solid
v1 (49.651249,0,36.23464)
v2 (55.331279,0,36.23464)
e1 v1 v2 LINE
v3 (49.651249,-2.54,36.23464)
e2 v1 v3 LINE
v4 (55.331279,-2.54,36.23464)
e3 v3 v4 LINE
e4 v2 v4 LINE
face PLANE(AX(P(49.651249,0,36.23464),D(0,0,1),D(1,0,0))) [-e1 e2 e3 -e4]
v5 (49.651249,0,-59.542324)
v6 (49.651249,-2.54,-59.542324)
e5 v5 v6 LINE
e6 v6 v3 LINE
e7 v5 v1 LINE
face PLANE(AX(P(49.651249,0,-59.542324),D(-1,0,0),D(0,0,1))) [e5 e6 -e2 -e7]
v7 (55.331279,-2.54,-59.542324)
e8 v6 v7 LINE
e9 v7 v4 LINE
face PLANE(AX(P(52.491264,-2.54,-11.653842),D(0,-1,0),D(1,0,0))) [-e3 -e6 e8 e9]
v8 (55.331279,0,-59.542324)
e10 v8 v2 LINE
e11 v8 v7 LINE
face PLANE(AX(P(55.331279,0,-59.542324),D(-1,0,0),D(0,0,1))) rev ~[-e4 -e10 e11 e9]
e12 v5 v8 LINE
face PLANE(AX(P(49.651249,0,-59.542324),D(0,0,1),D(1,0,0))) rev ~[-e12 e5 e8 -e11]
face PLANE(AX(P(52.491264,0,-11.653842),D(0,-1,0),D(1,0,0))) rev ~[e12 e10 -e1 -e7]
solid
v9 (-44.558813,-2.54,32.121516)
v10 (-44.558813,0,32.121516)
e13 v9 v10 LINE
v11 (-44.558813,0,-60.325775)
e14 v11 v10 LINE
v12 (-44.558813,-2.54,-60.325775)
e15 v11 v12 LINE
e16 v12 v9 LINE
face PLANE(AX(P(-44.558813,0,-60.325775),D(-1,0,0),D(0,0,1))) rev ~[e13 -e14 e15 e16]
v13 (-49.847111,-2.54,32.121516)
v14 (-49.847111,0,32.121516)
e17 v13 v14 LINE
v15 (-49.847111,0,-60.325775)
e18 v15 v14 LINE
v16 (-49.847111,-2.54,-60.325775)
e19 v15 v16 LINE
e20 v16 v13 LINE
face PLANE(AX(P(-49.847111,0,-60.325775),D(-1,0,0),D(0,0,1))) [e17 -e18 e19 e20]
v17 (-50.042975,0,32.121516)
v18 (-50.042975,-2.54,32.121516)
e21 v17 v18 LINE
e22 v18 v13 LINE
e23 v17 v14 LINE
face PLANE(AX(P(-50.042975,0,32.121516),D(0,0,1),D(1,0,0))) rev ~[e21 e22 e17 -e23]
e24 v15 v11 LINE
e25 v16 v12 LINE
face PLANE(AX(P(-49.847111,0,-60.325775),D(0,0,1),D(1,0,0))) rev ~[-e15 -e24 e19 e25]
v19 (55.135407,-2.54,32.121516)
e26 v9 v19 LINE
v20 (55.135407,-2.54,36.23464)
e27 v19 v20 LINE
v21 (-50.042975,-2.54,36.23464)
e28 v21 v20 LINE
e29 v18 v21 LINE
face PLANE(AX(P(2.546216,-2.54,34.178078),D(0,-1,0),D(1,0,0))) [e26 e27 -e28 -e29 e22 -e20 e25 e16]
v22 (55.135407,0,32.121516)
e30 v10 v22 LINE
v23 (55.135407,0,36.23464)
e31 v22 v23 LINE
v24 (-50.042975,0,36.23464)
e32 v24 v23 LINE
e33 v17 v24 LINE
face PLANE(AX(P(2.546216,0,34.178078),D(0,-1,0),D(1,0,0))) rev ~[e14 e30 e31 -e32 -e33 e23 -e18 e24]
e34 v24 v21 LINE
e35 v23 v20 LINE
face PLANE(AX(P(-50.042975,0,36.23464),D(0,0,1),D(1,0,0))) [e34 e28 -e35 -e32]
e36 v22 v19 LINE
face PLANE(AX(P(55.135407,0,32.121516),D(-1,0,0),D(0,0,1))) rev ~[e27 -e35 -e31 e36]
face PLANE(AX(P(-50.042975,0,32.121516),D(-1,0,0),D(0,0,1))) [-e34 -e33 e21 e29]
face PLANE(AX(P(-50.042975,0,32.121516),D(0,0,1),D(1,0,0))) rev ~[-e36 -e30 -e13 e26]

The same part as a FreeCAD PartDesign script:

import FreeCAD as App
import Part
import Sketcher
from FreeCAD import Vector
Q = App.Units.Quantity

doc = App.newDocument("Part")
body = doc.addObject("PartDesign::Body", "Body")

sketch1 = body.newObject("Sketcher::SketchObject", "Sketch")
sketch1.AttachmentSupport = (doc.getObject("XZ_Plane"), [""])
sketch1.MapMode = "FlatFace"
sketch1.addGeometry(Part.LineSegment(Vector(-50, 36, 0), Vector(-50, -60, 0)), False)
sketch1.addGeometry(Part.LineSegment(Vector(-50, -60, 0), Vector(-45, -60, 0)), False)
sketch1.addGeometry(Part.LineSegment(Vector(-45, -60, 0), Vector(-45, 36, 0)), False)
sketch1.addGeometry(Part.LineSegment(Vector(-45, 36, 0), Vector(-50, 36, 0)), False)
sketch1.addConstraint(Sketcher.Constraint("Coincident", 0, 2, 1, 1))
sketch1.addConstraint(Sketcher.Constraint("Coincident", 1, 2, 2, 1))
sketch1.addConstraint(Sketcher.Constraint("Coincident", 2, 2, 3, 1))
sketch1.addConstraint(Sketcher.Constraint("Coincident", 3, 2, 0, 1))
sketch1.addConstraint(Sketcher.Constraint("Vertical", 0))
sketch1.addConstraint(Sketcher.Constraint("Horizontal", 1))
sketch1.addConstraint(Sketcher.Constraint("Vertical", 2))
sketch1.addConstraint(Sketcher.Constraint("Horizontal", 3))
sketch1.addConstraint(Sketcher.Constraint("DistanceX", 1, 1, 1, 2, 5.288299))
sketch1.addConstraint(Sketcher.Constraint("DistanceY", 0, 2, 0, 1, 96.168689))
sketch1.addConstraint(Sketcher.Constraint("DistanceX", 0, 2, -1, 1, 49.847111))
sketch1.addConstraint(Sketcher.Constraint("DistanceY", 0, 2, -1, 1, 60.325775))
pad1 = body.newObject("PartDesign::Pad", "Pad")
pad1.Profile = sketch1
pad1.Length = Q("0.1 in")

sketch2 = body.newObject("Sketcher::SketchObject", "Sketch001")
sketch2.AttachmentSupport = (doc.getObject("XZ_Plane"), [""])
sketch2.MapMode = "FlatFace"
sketch2.addGeometry(Part.LineSegment(Vector(-50, 36.2, 0), Vector(-50, 32.1, 0)), False)
sketch2.addGeometry(Part.LineSegment(Vector(-50, 32.1, 0), Vector(55.1, 32.1, 0)), False)
sketch2.addGeometry(Part.LineSegment(Vector(55.1, 32.1, 0), Vector(55.1, 36.2, 0)), False)
sketch2.addGeometry(Part.LineSegment(Vector(55.1, 36.2, 0), Vector(-50, 36.2, 0)), False)
sketch2.addConstraint(Sketcher.Constraint("Coincident", 0, 2, 1, 1))
sketch2.addConstraint(Sketcher.Constraint("Coincident", 1, 2, 2, 1))
sketch2.addConstraint(Sketcher.Constraint("Coincident", 2, 2, 3, 1))
sketch2.addConstraint(Sketcher.Constraint("Coincident", 3, 2, 0, 1))
sketch2.addConstraint(Sketcher.Constraint("Vertical", 0))
sketch2.addConstraint(Sketcher.Constraint("Horizontal", 1))
sketch2.addConstraint(Sketcher.Constraint("Vertical", 2))
sketch2.addConstraint(Sketcher.Constraint("Horizontal", 3))
sketch2.addConstraint(Sketcher.Constraint("DistanceX", 1, 1, 1, 2, 105.178383))
sketch2.addConstraint(Sketcher.Constraint("DistanceY", 0, 2, 0, 1, 4.113123))
sketch2.addConstraint(Sketcher.Constraint("DistanceY", -1, 1, 2, 2, 36.23464))
sketch2.addConstraint(Sketcher.Constraint("DistanceX", 0, 2, -1, 1, 50.042975))
pad2 = body.newObject("PartDesign::Pad", "Pad001")
pad2.Profile = sketch2
pad2.Length = Q("0.1 in")
body2 = doc.addObject("PartDesign::Body", "Body001")

sketch3 = body2.newObject("Sketcher::SketchObject", "Sketch002")
sketch3.AttachmentSupport = (doc.getObject("XZ_Plane001"), [""])
sketch3.MapMode = "FlatFace"
sketch3.addGeometry(Part.LineSegment(Vector(50, 36, 0), Vector(50, -60, 0)), False)
sketch3.addGeometry(Part.LineSegment(Vector(50, -60, 0), Vector(55, -60, 0)), False)
sketch3.addGeometry(Part.LineSegment(Vector(55, -60, 0), Vector(55, 36, 0)), False)
sketch3.addGeometry(Part.LineSegment(Vector(55, 36, 0), Vector(50, 36, 0)), False)
sketch3.addConstraint(Sketcher.Constraint("Coincident", 0, 2, 1, 1))
sketch3.addConstraint(Sketcher.Constraint("Coincident", 1, 2, 2, 1))
sketch3.addConstraint(Sketcher.Constraint("Coincident", 2, 2, 3, 1))
sketch3.addConstraint(Sketcher.Constraint("Coincident", 3, 2, 0, 1))
sketch3.addConstraint(Sketcher.Constraint("Vertical", 0))
sketch3.addConstraint(Sketcher.Constraint("Horizontal", 1))
sketch3.addConstraint(Sketcher.Constraint("Vertical", 2))
sketch3.addConstraint(Sketcher.Constraint("Horizontal", 3))
sketch3.addConstraint(Sketcher.Constraint("DistanceX", 1, 1, 1, 2, 5.680029))
sketch3.addConstraint(Sketcher.Constraint("DistanceY", 0, 2, 0, 1, 95.776964))
sketch3.addConstraint(Sketcher.Constraint("DistanceX", -1, 1, 0, 2, 49.651249))
sketch3.addConstraint(Sketcher.Constraint("DistanceY", -1, 1, 2, 2, 36.23464))
pad3 = body2.newObject("PartDesign::Pad", "Pad002")
pad3.Profile = sketch3
pad3.Length = Q("0.1 in")

doc.recompute()
